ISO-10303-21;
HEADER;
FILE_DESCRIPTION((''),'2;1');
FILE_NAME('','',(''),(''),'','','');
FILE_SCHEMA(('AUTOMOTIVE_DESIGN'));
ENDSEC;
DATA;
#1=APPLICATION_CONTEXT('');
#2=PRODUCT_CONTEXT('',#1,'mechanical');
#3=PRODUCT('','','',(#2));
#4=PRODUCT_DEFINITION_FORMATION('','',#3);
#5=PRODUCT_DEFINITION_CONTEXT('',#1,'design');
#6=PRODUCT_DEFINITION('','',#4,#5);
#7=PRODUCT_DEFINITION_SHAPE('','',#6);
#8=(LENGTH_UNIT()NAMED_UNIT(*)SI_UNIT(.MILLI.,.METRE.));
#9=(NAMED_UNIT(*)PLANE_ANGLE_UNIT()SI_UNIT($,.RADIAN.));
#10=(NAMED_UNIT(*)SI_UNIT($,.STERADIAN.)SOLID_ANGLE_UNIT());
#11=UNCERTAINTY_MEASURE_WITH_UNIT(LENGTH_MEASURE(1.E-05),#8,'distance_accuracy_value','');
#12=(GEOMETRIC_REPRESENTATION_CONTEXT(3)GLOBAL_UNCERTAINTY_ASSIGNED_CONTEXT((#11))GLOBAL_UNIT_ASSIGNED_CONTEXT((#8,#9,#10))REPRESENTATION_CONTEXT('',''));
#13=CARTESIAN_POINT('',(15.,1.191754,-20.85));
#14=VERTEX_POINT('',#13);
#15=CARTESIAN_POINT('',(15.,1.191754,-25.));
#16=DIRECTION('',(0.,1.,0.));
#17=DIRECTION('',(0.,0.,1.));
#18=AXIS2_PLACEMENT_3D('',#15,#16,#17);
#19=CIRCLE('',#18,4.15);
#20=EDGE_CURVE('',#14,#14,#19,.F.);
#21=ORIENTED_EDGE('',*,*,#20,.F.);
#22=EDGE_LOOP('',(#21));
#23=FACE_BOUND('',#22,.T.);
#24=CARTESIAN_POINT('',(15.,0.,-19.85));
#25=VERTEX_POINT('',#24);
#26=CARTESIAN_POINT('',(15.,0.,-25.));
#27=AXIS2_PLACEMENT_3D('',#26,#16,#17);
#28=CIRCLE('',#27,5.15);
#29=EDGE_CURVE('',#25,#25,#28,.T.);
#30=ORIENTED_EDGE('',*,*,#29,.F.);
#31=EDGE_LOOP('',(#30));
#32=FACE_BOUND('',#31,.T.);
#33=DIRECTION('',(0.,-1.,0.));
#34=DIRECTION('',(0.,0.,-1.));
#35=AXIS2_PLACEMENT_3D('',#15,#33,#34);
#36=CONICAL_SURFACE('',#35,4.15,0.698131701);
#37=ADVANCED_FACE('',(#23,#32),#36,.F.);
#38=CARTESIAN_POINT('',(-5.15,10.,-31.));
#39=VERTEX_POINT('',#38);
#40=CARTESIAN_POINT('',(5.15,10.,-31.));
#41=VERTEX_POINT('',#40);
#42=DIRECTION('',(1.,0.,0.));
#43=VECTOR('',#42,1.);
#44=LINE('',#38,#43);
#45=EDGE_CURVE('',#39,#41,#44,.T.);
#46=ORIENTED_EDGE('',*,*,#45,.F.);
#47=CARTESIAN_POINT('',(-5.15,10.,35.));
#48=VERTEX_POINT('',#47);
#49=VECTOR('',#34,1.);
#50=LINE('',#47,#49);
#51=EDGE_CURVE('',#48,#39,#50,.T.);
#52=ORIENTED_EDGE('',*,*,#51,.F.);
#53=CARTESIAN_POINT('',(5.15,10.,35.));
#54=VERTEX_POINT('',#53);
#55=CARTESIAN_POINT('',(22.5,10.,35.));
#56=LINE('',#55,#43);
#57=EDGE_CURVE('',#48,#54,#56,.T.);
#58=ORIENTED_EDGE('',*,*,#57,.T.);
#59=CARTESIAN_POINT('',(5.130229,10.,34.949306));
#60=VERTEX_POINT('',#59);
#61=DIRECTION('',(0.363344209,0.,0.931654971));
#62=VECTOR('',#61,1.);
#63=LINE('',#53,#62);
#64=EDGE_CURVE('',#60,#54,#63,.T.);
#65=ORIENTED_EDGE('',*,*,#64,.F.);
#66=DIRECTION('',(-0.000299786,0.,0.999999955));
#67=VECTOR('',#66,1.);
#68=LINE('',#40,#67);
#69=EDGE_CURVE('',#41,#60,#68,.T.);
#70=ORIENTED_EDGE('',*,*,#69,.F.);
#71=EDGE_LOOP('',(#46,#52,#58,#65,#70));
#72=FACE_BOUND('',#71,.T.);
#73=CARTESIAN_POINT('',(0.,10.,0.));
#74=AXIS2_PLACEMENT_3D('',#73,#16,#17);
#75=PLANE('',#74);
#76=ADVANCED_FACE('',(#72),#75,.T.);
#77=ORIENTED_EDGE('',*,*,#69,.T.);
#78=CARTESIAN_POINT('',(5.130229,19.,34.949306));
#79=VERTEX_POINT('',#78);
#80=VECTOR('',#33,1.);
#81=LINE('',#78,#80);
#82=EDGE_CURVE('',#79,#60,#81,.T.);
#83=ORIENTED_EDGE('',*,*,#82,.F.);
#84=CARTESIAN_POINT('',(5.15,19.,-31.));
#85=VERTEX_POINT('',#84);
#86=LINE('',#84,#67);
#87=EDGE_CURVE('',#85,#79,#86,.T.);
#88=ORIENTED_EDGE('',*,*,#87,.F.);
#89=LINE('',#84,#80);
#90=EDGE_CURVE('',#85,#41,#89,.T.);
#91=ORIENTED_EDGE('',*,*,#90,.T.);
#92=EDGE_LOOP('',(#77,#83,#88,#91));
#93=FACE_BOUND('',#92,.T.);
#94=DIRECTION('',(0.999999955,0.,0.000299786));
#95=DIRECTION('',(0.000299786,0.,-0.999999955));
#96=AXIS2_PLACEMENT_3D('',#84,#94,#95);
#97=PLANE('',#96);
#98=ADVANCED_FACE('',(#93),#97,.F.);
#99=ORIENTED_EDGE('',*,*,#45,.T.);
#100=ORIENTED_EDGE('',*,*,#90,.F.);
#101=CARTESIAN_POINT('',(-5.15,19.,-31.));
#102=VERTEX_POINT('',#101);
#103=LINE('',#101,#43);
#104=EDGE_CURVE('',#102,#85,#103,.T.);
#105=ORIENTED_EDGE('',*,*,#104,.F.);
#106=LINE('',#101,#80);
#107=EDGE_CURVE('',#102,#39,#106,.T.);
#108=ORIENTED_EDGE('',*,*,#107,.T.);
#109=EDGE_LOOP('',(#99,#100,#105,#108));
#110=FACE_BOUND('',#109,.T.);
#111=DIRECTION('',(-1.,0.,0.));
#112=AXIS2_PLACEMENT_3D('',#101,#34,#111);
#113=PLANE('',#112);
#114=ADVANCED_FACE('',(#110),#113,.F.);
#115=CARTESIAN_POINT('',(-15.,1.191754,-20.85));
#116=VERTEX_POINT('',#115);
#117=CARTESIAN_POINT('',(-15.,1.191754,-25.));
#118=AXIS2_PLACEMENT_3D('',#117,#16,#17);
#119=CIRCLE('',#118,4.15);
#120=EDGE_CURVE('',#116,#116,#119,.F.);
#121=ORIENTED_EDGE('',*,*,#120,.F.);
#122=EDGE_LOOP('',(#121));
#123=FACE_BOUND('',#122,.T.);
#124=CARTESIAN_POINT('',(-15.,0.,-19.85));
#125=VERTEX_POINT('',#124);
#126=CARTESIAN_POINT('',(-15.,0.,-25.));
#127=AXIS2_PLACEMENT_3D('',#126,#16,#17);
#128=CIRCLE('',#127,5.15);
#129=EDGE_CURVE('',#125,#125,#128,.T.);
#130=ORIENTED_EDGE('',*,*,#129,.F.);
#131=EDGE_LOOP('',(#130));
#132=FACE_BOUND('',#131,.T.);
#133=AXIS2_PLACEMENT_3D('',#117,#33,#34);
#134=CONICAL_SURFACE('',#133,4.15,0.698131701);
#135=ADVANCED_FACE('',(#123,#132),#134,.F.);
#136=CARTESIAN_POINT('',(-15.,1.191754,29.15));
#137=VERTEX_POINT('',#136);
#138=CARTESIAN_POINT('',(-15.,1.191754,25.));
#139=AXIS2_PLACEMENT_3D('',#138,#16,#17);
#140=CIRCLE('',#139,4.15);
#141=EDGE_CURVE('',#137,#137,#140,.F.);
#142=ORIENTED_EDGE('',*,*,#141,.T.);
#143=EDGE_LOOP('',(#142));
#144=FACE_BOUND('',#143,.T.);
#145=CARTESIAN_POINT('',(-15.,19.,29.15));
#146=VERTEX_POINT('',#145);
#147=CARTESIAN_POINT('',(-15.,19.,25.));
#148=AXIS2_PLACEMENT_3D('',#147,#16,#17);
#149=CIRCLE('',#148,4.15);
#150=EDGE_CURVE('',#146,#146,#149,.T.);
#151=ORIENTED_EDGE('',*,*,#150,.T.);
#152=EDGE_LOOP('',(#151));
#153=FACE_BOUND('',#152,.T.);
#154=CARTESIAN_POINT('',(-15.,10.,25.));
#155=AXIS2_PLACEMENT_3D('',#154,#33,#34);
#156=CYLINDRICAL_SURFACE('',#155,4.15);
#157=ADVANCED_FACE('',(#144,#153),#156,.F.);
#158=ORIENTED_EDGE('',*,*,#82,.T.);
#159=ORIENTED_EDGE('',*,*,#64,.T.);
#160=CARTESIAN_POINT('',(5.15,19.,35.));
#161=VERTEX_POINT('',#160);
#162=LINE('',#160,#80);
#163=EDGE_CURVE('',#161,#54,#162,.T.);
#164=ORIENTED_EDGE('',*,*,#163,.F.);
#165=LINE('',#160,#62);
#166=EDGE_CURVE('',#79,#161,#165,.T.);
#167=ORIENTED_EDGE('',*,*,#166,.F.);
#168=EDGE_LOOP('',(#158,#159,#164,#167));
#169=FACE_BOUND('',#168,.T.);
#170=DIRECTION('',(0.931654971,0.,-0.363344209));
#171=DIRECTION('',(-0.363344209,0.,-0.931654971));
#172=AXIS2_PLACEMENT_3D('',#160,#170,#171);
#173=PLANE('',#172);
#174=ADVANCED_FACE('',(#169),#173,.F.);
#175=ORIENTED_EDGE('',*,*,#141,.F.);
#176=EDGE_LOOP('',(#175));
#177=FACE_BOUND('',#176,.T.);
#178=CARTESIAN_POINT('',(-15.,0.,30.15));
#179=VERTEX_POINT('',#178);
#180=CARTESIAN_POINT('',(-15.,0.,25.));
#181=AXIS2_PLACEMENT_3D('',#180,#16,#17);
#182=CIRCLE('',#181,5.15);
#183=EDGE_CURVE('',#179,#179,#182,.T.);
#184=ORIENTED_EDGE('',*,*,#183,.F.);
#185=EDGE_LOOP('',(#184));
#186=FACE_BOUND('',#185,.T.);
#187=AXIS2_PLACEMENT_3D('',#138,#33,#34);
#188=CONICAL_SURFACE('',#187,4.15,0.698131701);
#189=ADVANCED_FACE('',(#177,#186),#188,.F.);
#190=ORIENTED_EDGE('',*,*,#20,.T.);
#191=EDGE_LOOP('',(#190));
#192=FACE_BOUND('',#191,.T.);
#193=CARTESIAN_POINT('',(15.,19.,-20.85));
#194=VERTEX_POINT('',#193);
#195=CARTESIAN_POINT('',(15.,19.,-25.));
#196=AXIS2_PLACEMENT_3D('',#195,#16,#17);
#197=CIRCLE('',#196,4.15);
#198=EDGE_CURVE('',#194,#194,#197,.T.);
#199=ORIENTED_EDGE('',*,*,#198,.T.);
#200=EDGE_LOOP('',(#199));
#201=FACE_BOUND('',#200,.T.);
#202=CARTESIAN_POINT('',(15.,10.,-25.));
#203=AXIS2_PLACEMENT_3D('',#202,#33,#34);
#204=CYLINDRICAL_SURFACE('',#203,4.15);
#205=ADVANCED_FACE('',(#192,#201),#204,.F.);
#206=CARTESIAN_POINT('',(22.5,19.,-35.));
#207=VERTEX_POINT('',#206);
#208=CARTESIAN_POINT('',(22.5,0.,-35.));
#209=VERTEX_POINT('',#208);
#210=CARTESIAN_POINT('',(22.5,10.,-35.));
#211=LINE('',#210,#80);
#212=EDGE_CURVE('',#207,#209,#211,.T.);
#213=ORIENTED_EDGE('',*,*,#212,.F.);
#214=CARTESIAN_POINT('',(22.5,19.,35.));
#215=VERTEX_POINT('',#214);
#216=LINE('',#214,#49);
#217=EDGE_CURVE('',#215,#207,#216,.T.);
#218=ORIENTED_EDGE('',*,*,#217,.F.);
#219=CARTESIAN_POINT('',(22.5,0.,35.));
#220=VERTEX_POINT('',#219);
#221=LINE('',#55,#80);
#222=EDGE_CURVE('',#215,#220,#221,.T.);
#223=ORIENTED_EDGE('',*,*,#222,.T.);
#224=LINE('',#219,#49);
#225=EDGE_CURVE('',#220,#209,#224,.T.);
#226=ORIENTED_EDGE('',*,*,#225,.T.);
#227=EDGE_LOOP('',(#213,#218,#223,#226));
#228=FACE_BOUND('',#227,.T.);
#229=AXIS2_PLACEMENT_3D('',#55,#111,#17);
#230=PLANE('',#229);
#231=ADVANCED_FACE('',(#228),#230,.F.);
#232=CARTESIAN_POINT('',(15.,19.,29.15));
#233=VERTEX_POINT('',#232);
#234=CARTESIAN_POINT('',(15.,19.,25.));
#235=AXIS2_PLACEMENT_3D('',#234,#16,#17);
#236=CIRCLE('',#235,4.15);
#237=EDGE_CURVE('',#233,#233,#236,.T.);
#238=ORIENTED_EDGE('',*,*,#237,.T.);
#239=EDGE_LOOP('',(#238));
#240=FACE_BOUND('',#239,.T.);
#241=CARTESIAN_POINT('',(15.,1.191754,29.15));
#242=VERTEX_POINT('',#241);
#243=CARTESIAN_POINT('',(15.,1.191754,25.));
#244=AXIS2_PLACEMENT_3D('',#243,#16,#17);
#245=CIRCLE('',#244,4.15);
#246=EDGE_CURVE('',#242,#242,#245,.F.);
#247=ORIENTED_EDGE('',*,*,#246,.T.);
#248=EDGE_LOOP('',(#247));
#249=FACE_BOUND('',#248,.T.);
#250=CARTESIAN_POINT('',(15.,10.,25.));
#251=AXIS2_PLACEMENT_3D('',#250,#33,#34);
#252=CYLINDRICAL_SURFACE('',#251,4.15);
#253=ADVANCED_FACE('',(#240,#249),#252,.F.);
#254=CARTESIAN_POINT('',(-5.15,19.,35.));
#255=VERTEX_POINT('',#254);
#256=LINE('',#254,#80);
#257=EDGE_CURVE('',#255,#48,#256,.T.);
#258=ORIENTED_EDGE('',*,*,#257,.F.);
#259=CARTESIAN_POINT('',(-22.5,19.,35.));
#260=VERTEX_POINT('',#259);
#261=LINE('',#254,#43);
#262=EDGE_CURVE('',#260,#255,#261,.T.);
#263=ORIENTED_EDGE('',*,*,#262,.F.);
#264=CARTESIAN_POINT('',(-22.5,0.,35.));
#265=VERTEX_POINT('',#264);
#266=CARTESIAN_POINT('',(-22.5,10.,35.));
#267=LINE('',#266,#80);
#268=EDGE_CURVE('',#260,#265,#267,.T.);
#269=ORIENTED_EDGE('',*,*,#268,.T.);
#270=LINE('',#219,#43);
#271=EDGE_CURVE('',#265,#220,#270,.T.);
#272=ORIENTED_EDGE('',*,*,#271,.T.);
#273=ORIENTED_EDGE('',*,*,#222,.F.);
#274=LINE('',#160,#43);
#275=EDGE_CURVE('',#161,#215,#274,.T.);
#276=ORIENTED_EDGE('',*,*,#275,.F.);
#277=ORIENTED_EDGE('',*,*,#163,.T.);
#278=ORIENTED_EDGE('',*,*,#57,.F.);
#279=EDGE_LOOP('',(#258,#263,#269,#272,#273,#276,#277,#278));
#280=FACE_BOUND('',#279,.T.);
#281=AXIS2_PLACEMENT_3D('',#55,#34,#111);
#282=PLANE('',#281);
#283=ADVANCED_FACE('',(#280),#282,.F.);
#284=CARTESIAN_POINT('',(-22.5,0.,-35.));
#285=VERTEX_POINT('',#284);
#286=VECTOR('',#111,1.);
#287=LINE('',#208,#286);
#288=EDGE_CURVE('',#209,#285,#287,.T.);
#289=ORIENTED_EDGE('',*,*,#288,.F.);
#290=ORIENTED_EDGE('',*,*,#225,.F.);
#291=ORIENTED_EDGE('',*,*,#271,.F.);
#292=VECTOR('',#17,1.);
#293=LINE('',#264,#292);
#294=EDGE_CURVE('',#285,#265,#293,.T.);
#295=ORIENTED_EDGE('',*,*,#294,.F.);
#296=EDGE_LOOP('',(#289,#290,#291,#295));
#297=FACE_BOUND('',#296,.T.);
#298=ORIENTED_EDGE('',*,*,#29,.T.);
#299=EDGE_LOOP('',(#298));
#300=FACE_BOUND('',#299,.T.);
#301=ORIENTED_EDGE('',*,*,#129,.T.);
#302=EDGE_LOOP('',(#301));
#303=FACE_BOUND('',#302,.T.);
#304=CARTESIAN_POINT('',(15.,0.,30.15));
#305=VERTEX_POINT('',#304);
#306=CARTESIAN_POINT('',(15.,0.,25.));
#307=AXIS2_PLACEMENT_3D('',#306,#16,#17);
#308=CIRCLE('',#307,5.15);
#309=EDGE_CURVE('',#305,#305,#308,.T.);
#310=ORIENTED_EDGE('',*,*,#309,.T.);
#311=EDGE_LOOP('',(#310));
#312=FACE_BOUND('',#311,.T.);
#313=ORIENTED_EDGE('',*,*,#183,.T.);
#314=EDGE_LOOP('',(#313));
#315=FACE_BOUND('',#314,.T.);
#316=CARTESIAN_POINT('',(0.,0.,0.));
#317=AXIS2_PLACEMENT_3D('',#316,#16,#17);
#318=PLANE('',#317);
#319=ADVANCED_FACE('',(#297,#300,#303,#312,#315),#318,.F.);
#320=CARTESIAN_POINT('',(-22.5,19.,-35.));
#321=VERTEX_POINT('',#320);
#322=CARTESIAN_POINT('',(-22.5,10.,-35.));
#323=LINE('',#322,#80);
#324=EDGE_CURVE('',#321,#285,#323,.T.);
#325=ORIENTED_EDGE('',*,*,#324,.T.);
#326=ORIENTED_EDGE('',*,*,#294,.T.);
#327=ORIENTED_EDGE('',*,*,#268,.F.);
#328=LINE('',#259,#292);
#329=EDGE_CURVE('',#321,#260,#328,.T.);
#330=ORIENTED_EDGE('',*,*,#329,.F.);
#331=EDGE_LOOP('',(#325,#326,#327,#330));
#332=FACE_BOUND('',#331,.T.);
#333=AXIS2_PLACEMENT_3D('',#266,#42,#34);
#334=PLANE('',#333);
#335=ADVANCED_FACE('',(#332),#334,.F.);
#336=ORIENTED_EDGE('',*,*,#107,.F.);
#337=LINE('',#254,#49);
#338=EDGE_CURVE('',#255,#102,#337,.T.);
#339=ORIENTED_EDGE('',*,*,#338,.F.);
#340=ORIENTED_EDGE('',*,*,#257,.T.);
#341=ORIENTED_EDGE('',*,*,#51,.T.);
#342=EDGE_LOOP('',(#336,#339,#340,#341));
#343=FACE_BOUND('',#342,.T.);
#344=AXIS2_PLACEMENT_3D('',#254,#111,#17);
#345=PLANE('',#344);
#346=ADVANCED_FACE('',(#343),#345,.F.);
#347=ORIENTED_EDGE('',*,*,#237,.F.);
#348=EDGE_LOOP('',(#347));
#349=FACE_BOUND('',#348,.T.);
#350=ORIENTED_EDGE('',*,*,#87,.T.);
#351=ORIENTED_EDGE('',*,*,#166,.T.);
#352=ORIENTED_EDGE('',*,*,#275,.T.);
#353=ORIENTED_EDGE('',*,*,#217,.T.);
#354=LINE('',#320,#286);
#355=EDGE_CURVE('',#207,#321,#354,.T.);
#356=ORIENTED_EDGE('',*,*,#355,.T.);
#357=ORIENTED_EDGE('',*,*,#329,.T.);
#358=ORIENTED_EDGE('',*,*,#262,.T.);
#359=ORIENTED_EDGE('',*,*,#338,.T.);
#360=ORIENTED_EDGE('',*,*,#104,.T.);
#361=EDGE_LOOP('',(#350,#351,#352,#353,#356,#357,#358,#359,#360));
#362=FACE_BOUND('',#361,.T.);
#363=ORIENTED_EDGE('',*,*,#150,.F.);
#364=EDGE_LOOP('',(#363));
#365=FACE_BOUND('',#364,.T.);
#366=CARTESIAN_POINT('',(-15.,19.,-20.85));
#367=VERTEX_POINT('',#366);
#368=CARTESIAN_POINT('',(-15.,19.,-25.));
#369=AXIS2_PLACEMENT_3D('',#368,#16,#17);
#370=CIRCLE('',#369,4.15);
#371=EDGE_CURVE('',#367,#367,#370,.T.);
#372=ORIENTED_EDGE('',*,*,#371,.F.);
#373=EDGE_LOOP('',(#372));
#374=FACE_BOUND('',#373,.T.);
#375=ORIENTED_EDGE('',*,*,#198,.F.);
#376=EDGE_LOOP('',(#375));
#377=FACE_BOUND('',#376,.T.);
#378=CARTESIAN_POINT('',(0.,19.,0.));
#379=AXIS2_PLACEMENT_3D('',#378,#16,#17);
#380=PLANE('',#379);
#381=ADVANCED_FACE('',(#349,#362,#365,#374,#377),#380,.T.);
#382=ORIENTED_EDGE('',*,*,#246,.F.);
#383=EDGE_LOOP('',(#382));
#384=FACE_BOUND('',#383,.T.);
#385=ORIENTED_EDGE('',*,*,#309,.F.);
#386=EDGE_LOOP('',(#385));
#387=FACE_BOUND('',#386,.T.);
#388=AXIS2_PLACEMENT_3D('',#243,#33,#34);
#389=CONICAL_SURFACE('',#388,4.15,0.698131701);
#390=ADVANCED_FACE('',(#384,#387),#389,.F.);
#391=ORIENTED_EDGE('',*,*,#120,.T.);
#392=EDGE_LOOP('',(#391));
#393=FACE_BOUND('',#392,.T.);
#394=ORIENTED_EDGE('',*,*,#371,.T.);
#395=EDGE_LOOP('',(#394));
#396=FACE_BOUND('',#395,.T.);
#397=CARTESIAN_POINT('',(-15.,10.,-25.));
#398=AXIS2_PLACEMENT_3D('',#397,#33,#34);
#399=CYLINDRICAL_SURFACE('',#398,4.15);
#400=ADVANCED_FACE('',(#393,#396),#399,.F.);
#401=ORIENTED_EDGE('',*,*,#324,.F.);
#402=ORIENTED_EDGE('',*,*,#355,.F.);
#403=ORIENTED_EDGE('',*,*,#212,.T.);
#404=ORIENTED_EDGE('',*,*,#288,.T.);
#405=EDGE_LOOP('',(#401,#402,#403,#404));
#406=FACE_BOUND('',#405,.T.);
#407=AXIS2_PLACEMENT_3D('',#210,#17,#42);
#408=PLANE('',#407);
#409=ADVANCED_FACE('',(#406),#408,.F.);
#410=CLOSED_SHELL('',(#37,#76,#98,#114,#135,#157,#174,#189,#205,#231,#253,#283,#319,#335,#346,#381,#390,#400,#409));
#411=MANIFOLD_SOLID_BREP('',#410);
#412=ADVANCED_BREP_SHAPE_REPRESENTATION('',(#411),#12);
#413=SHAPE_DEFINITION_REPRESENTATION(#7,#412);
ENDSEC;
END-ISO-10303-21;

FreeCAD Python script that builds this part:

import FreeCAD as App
import Part
import Sketcher
from FreeCAD import Vector


def edges_at(feature, points):
    """Names of the edges that pass closest to the given points."""
    edges = feature.Shape.Edges
    near = lambda p: min(range(len(edges)), key=lambda i: edges[i].distToShape(Part.Vertex(*p))[0])
    return sorted({f"Edge{near(p) + 1}" for p in points})


def add_polygon(sketch, points):
    """Adds a closed chain of lines whose ends are joined by coincident constraints."""
    first, n = sketch.GeometryCount, len(points)
    for a, b in zip(points, points[1:] + points[:1]):
        sketch.addGeometry(Part.LineSegment(App.Vector(*a, 0), App.Vector(*b, 0)), False)
    for i in range(n):
        sketch.addConstraint(Sketcher.Constraint("Coincident", first + i, 2, first + (i + 1) % n, 1))

doc = App.newDocument("Part")
params = doc.addObject("Spreadsheet::Sheet", "Params")
for row, (alias, value) in enumerate([
    ("sketch1_width", "45 mm"),
    ("sketch1_height", "70 mm"),
    ("pad1_length", "10 mm"),
    ("sketch2_diameter", "8.3 mm"),
    ("sketch3_diameter", "8.3 mm"),
    ("sketch3_width", "45 mm"),
    ("sketch3_height", "66 mm"),
    ("sketch3_height2", "70 mm"),
    ("sketch3_width2", "10.3 mm"),
    ("pad2_length", "9 mm"),
    ("chamfer_size", "1 mm"),
    ("chamfer_size2", "1.191754 mm"),
], start=1):
    params.set(f"A{row}", alias)
    params.set(f"B{row}", "=" + value)
    params.setAlias(f"B{row}", alias)

body = doc.addObject("PartDesign::Body", "Body")

sketch1 = body.newObject("Sketcher::SketchObject", "Sketch")
sketch1.AttachmentSupport = (doc.getObject("XZ_Plane"), [""])
sketch1.MapMode = "FlatFace"
add_polygon(sketch1, [(-22.5, -35), (-22.5, 35), (22.5, 35), (22.5, -35)])
sketch1.addConstraint(Sketcher.Constraint("Vertical", 0))
sketch1.addConstraint(Sketcher.Constraint("Horizontal", 1))
sketch1.addConstraint(Sketcher.Constraint("Vertical", 2))
sketch1.addConstraint(Sketcher.Constraint("Horizontal", 3))
sketch1.addConstraint(Sketcher.Constraint("Symmetric", 0, 2, 2, 2, -1, 1))
sketch1.addConstraint(Sketcher.Constraint("DistanceX", 1, 1, 1, 2, 45.0))
sketch1.addConstraint(Sketcher.Constraint("DistanceY", 0, 1, 0, 2, 70.0))
sketch1.setExpression("Constraints[9]", "Params.sketch1_width")
sketch1.setExpression("Constraints[10]", "Params.sketch1_height")
pad1 = body.newObject("PartDesign::Pad", "Pad")
pad1.Profile = sketch1
pad1.setExpression("Length", "Params.pad1_length")
pad1.Reversed = True

sketch2 = body.newObject("Sketcher::SketchObject", "Sketch001")
sketch2.AttachmentSupport = (doc.getObject("XZ_Plane"), [""])
sketch2.MapMode = "FlatFace"
sketch2.addGeometry(Part.Circle(Vector(15, 25, 0), Vector(0, 0, 1), 4.15), False)
sketch2.addGeometry(Part.Circle(Vector(15, -25, 0), Vector(0, 0, 1), 4.15), False)
sketch2.addGeometry(Part.Circle(Vector(-15, -25, 0), Vector(0, 0, 1), 4.15), False)
sketch2.addGeometry(Part.Circle(Vector(-15, 25, 0), Vector(0, 0, 1), 4.15), False)
sketch2.addConstraint(Sketcher.Constraint("Equal", 0, 1))
sketch2.addConstraint(Sketcher.Constraint("Equal", 1, 2))
sketch2.addConstraint(Sketcher.Constraint("Equal", 2, 3))
sketch2.addConstraint(Sketcher.Constraint("Symmetric", 0, 3, 2, 3, -1, 1))
sketch2.addConstraint(Sketcher.Constraint("Symmetric", 1, 3, 3, 3, -1, 1))
sketch2.addConstraint(Sketcher.Constraint("Symmetric", 1, 3, 2, 3, -2))
sketch2.addConstraint(Sketcher.Constraint("Diameter", 0, 8.3))
sketch2.addConstraint(Sketcher.Constraint("DistanceX", -1, 1, 0, 3, 15.0))
sketch2.addConstraint(Sketcher.Constraint("DistanceY", -1, 1, 0, 3, 25.0))
sketch2.setExpression("Constraints[6]", "Params.sketch2_diameter")
pocket1 = body.newObject("PartDesign::Pocket", "Pocket")
pocket1.Profile = sketch2
pocket1.Type = "ThroughAll"

sketch3 = body.newObject("Sketcher::SketchObject", "Sketch002")
sketch3.AttachmentSupport = (doc.getObject("XZ_Plane"), [""])
sketch3.MapMode = "FlatFace"
sketch3.AttachmentOffset = App.Placement(Vector(0, 0, -10), App.Rotation())
add_polygon(sketch3, [(-22.5, 35), (-5.15, 35), (-5.15, -31), (5.15, -31), (5.130229, 34.949306), (5.15, 35), (22.5, 35), (22.5, -35), (-22.5, -35)])
sketch3.addGeometry(Part.Circle(Vector(15, 25, 0), Vector(0, 0, 1), 4.15), False)
sketch3.addGeometry(Part.Circle(Vector(-15, 25, 0), Vector(0, 0, 1), 4.15), False)
sketch3.addGeometry(Part.Circle(Vector(15, -25, 0), Vector(0, 0, 1), 4.15), False)
sketch3.addGeometry(Part.Circle(Vector(-15, -25, 0), Vector(0, 0, 1), 4.15), False)
sketch3.addConstraint(Sketcher.Constraint("Horizontal", 0))
sketch3.addConstraint(Sketcher.Constraint("Vertical", 1))
sketch3.addConstraint(Sketcher.Constraint("Horizontal", 2))
sketch3.addConstraint(Sketcher.Constraint("Horizontal", 5))
sketch3.addConstraint(Sketcher.Constraint("Vertical", 6))
sketch3.addConstraint(Sketcher.Constraint("Horizontal", 7))
sketch3.addConstraint(Sketcher.Constraint("Vertical", 8))
sketch3.addConstraint(Sketcher.Constraint("Equal", 9, 10))
sketch3.addConstraint(Sketcher.Constraint("Equal", 10, 11))
sketch3.addConstraint(Sketcher.Constraint("Equal", 11, 12))
sketch3.addConstraint(Sketcher.Constraint("Symmetric", 10, 3, 11, 3, -1, 1))
sketch3.addConstraint(Sketcher.Constraint("Symmetric", 9, 3, 12, 3, -1, 1))
sketch3.addConstraint(Sketcher.Constraint("Symmetric", 5, 2, 7, 2, -1, 1))
sketch3.addConstraint(Sketcher.Constraint("Symmetric", 9, 3, 10, 3, -2))
sketch3.addConstraint(Sketcher.Constraint("Symmetric", 0, 2, 4, 2, -2))
sketch3.addConstraint(Sketcher.Constraint("Vertical", 2, 2, 4, 2))
sketch3.addConstraint(Sketcher.Constraint("Diameter", 9, 8.3))
sketch3.addConstraint(Sketcher.Constraint("DistanceX", 7, 2, 7, 1, 45.0))
sketch3.addConstraint(Sketcher.Constraint("DistanceY", 1, 2, 1, 1, 66.0))
sketch3.addConstraint(Sketcher.Constraint("DistanceY", 6, 2, 6, 1, 70.0))
sketch3.addConstraint(Sketcher.Constraint("DistanceX", 2, 1, 2, 2, 10.3))
sketch3.addConstraint(Sketcher.Constraint("DistanceX", -1, 1, 9, 3, 15.0))
sketch3.addConstraint(Sketcher.Constraint("DistanceY", -1, 1, 9, 3, 25.0))
sketch3.addConstraint(Sketcher.Constraint("Distance", 3, 65.949309))
sketch3.addConstraint(Sketcher.Constraint("DistanceX", -1, 1, 3, 2, 5.130229))
sketch3.setExpression("Constraints[25]", "Params.sketch3_diameter")
sketch3.setExpression("Constraints[26]", "Params.sketch3_width")
sketch3.setExpression("Constraints[27]", "Params.sketch3_height")
sketch3.setExpression("Constraints[28]", "Params.sketch3_height2")
sketch3.setExpression("Constraints[29]", "Params.sketch3_width2")
pad2 = body.newObject("PartDesign::Pad", "Pad001")
pad2.Profile = sketch3
pad2.setExpression("Length", "Params.pad2_length")
pad2.Reversed = True
doc.recompute()

chamfer = body.newObject("PartDesign::Chamfer", "Chamfer")
chamfer.Base = (pad2, edges_at(pad2, [
    (-19.15, 0, -25),
    (-19.15, 0, 25),
    (10.85, 0, 25),
    (10.85, 0, -25),
]))
chamfer.ChamferType = "Two distances"
chamfer.setExpression("Size", "Params.chamfer_size")
chamfer.setExpression("Size2", "Params.chamfer_size2")

doc.recompute()
